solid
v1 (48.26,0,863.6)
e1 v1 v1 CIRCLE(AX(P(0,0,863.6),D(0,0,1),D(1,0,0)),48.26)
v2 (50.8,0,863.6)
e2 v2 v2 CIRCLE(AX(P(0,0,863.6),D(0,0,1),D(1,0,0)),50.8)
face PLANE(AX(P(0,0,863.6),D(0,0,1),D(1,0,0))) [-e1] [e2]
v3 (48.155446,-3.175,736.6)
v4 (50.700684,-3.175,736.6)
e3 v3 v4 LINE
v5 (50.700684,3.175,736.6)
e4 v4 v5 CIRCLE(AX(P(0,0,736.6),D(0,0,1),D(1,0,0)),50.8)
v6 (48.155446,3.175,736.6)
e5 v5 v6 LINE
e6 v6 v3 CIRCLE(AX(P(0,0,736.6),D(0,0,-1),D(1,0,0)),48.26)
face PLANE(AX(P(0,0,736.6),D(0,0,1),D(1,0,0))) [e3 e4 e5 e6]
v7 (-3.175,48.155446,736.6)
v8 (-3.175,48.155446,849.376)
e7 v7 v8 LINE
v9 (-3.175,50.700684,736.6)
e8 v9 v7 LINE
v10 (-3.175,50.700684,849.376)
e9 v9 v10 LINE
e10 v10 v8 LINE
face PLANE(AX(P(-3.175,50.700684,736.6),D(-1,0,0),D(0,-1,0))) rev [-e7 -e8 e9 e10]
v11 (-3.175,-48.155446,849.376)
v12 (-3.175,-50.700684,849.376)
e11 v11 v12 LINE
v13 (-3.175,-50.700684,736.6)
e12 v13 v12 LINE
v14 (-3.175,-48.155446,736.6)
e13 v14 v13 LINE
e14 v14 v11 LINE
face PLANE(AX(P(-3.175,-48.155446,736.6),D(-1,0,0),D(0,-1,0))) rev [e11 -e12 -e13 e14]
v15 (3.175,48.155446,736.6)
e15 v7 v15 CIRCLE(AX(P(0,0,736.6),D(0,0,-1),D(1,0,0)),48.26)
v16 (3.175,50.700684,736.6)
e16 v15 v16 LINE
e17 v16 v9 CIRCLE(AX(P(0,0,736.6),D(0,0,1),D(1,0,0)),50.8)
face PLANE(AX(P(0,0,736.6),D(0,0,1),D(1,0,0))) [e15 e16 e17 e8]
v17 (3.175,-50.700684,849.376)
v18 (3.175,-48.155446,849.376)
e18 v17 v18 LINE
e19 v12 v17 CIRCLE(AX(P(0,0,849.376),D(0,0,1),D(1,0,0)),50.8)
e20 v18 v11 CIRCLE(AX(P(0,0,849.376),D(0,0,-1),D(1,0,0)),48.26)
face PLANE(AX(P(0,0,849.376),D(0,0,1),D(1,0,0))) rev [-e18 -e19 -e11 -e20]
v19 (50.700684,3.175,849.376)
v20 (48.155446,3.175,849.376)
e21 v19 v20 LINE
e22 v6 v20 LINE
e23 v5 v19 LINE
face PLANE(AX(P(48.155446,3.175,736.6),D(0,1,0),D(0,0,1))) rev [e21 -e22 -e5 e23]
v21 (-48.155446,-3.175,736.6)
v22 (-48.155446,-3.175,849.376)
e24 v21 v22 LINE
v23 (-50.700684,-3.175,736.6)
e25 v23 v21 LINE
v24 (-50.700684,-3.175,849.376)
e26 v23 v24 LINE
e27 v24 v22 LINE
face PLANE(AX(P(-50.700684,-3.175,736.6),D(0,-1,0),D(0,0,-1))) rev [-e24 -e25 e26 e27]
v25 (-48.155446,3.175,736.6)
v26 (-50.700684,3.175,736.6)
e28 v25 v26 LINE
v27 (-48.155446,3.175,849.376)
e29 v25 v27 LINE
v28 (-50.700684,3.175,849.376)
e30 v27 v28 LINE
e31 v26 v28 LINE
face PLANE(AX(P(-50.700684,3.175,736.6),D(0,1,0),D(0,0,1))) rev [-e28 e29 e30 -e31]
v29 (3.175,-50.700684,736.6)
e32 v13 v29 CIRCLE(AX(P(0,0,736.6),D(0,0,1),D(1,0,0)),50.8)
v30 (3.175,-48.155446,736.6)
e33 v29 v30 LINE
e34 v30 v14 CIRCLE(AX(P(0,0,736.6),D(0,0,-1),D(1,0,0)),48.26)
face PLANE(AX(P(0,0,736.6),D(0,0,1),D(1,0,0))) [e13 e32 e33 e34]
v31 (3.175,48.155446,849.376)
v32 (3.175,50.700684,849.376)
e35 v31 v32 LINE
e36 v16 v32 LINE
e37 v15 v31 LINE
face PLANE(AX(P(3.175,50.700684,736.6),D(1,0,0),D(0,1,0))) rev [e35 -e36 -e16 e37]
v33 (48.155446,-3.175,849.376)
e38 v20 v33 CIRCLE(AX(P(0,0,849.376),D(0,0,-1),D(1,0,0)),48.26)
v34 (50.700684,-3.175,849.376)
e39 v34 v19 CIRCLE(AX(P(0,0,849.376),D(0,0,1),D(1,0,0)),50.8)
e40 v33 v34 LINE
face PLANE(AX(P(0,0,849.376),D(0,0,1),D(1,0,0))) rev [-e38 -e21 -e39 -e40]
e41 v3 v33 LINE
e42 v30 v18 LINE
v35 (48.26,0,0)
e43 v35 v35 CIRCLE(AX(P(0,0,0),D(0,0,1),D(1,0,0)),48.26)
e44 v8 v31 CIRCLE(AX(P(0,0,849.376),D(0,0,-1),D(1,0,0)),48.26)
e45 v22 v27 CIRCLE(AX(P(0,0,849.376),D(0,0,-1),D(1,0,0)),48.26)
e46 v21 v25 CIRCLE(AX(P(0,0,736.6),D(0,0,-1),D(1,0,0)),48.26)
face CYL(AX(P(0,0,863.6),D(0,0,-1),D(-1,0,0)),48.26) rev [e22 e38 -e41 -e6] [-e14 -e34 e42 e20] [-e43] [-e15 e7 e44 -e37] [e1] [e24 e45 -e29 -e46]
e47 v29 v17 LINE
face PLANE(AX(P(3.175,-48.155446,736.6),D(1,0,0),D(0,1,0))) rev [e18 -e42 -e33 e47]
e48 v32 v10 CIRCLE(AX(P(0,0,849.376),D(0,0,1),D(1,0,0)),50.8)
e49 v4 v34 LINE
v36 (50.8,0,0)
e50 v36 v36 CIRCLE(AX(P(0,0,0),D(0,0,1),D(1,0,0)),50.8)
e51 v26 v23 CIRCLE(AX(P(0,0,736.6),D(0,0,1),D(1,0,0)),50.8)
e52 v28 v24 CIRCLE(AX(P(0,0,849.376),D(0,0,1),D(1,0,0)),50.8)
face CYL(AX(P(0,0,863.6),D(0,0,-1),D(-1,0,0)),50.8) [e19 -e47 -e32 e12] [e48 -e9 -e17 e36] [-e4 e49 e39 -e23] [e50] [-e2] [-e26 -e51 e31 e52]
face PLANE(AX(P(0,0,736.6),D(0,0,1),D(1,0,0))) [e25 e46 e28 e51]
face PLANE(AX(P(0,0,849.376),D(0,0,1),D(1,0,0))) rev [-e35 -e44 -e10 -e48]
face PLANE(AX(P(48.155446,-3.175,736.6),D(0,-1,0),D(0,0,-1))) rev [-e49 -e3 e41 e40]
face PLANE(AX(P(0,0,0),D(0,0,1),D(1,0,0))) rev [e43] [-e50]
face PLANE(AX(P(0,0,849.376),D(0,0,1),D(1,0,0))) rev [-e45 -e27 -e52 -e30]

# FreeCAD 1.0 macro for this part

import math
import FreeCAD as App
import Part
import Sketcher
Q = App.Units.Quantity

doc = App.newDocument("Part")
params = doc.addObject("Spreadsheet::Sheet", "Params")
for row, (alias, value) in enumerate([
    ("sketch1_diameter", "4 in"),
    ("sketch1_diameter2", "3.8 in"),
    ("pad1_length", "34 in"),
    ("sketch2_radius", "2 in"),
    ("sketch2_radius2", "1.9 in"),
    ("pocket1_length", "5 in"),
    ("sketch3_radius", "2 in"),
    ("sketch3_radius2", "1.9 in"),
    ("pad2_length", "0.56 in"),
], start=1):
    params.set(f"A{row}", alias)
    params.set(f"B{row}", "=" + value)
    params.setAlias(f"B{row}", alias)

body = doc.addObject("PartDesign::Body", "Body")

# Sketch on XY plane
sketch1 = body.newObject("Sketcher::SketchObject", "Sketch")
sketch1.AttachmentSupport = (doc.getObject("XY_Plane"), [""])
sketch1.MapMode = "FlatFace"
sketch1.addGeometry(Part.Circle(App.Vector(0, 0, 0), App.Vector(0, 0, 1), 51), False)
sketch1.addGeometry(Part.Circle(App.Vector(0, 0, 0), App.Vector(0, 0, 1), 48), False)
sketch1.addConstraint(Sketcher.Constraint("Coincident", 0, 3, -1, 1))
sketch1.addConstraint(Sketcher.Constraint("Coincident", 1, 3, -1, 1))
sketch1.addConstraint(Sketcher.Constraint("Diameter", 0, Q("4 in")))
sketch1.addConstraint(Sketcher.Constraint("Diameter", 1, Q("3.8 in")))
sketch1.setExpression("Constraints[2]", "Params.sketch1_diameter")
sketch1.setExpression("Constraints[3]", "Params.sketch1_diameter2")
pad1 = body.newObject("PartDesign::Pad", "Pad")
pad1.Profile = sketch1
pad1.setExpression("Length", "Params.pad1_length")

# Sketch on XY plane
sketch2 = body.newObject("Sketcher::SketchObject", "Sketch001")
sketch2.AttachmentSupport = (doc.getObject("XY_Plane"), [""])
sketch2.MapMode = "FlatFace"
sketch2.AttachmentOffset = App.Placement(App.Vector(0, 0, 29 * 25.4), App.Rotation())
sketch2.addGeometry(Part.LineSegment(App.Vector(-3.2, 50.7, 0), App.Vector(-3.2, 48.2, 0)), False)
sketch2.addGeometry(Part.ArcOfCircle(Part.Circle(App.Vector(0, 0, 0), App.Vector(0, 0, 1), 48.3), math.radians(86.23), math.radians(93.77)), False)
sketch2.addGeometry(Part.LineSegment(App.Vector(3.2, 48.2, 0), App.Vector(3.2, 50.7, 0)), False)
sketch2.addGeometry(Part.ArcOfCircle(Part.Circle(App.Vector(0, 0, 0), App.Vector(0, 0, 1), 50.8), math.radians(86.42), math.radians(93.58)), False)
sketch2.addGeometry(Part.LineSegment(App.Vector(-48.2, 3.2, 0), App.Vector(-50.7, 3.2, 0)), False)
sketch2.addGeometry(Part.ArcOfCircle(Part.Circle(App.Vector(0, 0, 0), App.Vector(0, 0, 1), 50.8), math.radians(176.42), math.radians(183.58)), False)
sketch2.addGeometry(Part.LineSegment(App.Vector(-50.7, -3.2, 0), App.Vector(-48.2, -3.2, 0)), False)
sketch2.addGeometry(Part.ArcOfCircle(Part.Circle(App.Vector(0, 0, 0), App.Vector(0, 0, 1), 48.3), math.radians(176.23), math.radians(183.77)), False)
sketch2.addGeometry(Part.LineSegment(App.Vector(50.7, 3.2, 0), App.Vector(48.2, 3.2, 0)), False)
sketch2.addGeometry(Part.ArcOfCircle(Part.Circle(App.Vector(0, 0, 0), App.Vector(0, 0, 1), 48.3), math.radians(-3.77), math.radians(3.77)), False)
sketch2.addGeometry(Part.LineSegment(App.Vector(48.2, -3.2, 0), App.Vector(50.7, -3.2, 0)), False)
sketch2.addGeometry(Part.ArcOfCircle(Part.Circle(App.Vector(0, 0, 0), App.Vector(0, 0, 1), 50.8), math.radians(-3.58), math.radians(3.58)), False)
sketch2.addGeometry(Part.LineSegment(App.Vector(3.2, -50.7, 0), App.Vector(3.2, -48.2, 0)), False)
sketch2.addGeometry(Part.ArcOfCircle(Part.Circle(App.Vector(0, 0, 0), App.Vector(0, 0, 1), 48.3), math.radians(-93.77), math.radians(-86.23)), False)
sketch2.addGeometry(Part.LineSegment(App.Vector(-3.2, -48.2, 0), App.Vector(-3.2, -50.7, 0)), False)
sketch2.addGeometry(Part.ArcOfCircle(Part.Circle(App.Vector(0, 0, 0), App.Vector(0, 0, 1), 50.8), math.radians(-93.58), math.radians(-86.42)), False)
sketch2.addConstraint(Sketcher.Constraint("Coincident", 0, 2, 1, 2))
sketch2.addConstraint(Sketcher.Constraint("Coincident", 1, 1, 2, 1))
sketch2.addConstraint(Sketcher.Constraint("Coincident", 2, 2, 3, 1))
sketch2.addConstraint(Sketcher.Constraint("Coincident", 3, 2, 0, 1))
sketch2.addConstraint(Sketcher.Constraint("Coincident", 4, 2, 5, 1))
sketch2.addConstraint(Sketcher.Constraint("Coincident", 5, 2, 6, 1))
sketch2.addConstraint(Sketcher.Constraint("Coincident", 6, 2, 7, 2))
sketch2.addConstraint(Sketcher.Constraint("Coincident", 7, 1, 4, 1))
sketch2.addConstraint(Sketcher.Constraint("Coincident", 8, 2, 9, 2))
sketch2.addConstraint(Sketcher.Constraint("Coincident", 9, 1, 10, 1))
sketch2.addConstraint(Sketcher.Constraint("Coincident", 10, 2, 11, 1))
sketch2.addConstraint(Sketcher.Constraint("Coincident", 11, 2, 8, 1))
sketch2.addConstraint(Sketcher.Constraint("Coincident", 12, 2, 13, 2))
sketch2.addConstraint(Sketcher.Constraint("Coincident", 13, 1, 14, 1))
sketch2.addConstraint(Sketcher.Constraint("Coincident", 14, 2, 15, 1))
sketch2.addConstraint(Sketcher.Constraint("Coincident", 15, 2, 12, 1))
sketch2.addConstraint(Sketcher.Constraint("Vertical", 0))
sketch2.addConstraint(Sketcher.Constraint("Vertical", 2))
sketch2.addConstraint(Sketcher.Constraint("Horizontal", 4))
sketch2.addConstraint(Sketcher.Constraint("Horizontal", 6))
sketch2.addConstraint(Sketcher.Constraint("Horizontal", 8))
sketch2.addConstraint(Sketcher.Constraint("Horizontal", 10))
sketch2.addConstraint(Sketcher.Constraint("Vertical", 12))
sketch2.addConstraint(Sketcher.Constraint("Vertical", 14))
sketch2.addConstraint(Sketcher.Constraint("Coincident", 1, 3, -1, 1))
sketch2.addConstraint(Sketcher.Constraint("Coincident", 3, 3, -1, 1))
sketch2.addConstraint(Sketcher.Constraint("Coincident", 5, 3, -1, 1))
sketch2.addConstraint(Sketcher.Constraint("Coincident", 7, 3, -1, 1))
sketch2.addConstraint(Sketcher.Constraint("Coincident", 9, 3, -1, 1))
sketch2.addConstraint(Sketcher.Constraint("Coincident", 11, 3, -1, 1))
sketch2.addConstraint(Sketcher.Constraint("Coincident", 13, 3, -1, 1))
sketch2.addConstraint(Sketcher.Constraint("Coincident", 15, 3, -1, 1))
sketch2.addConstraint(Sketcher.Constraint("Equal", 3, 5))
sketch2.addConstraint(Sketcher.Constraint("Equal", 1, 7))
sketch2.addConstraint(Sketcher.Constraint("Equal", 7, 9))
sketch2.addConstraint(Sketcher.Constraint("Equal", 5, 11))
sketch2.addConstraint(Sketcher.Constraint("Equal", 9, 13))
sketch2.addConstraint(Sketcher.Constraint("Equal", 11, 15))
sketch2.addConstraint(Sketcher.Constraint("Horizontal", 0, 2, 1, 1))
sketch2.addConstraint(Sketcher.Constraint("Horizontal", 7, 1, 8, 2))
sketch2.addConstraint(Sketcher.Constraint("Horizontal", 6, 2, 9, 1))
sketch2.addConstraint(Sketcher.Constraint("Horizontal", 12, 2, 13, 1))
sketch2.addConstraint(Sketcher.Constraint("Vertical", 4, 2, 5, 2))
sketch2.addConstraint(Sketcher.Constraint("Vertical", 2, 2, 12, 2))
sketch2.addConstraint(Sketcher.Constraint("Radius", 3, Q("2 in")))
sketch2.addConstraint(Sketcher.Constraint("Radius", 1, Q("1.9 in")))
sketch2.addConstraint(Sketcher.Constraint("DistanceX", 0, 2, 1, 1, Q("0.25 in")))
sketch2.addConstraint(Sketcher.Constraint("DistanceY", 5, 2, 4, 2, Q("0.25 in")))
sketch2.setExpression("Constraints[44]", "Params.sketch2_radius")
sketch2.setExpression("Constraints[45]", "Params.sketch2_radius2")
pocket1 = body.newObject("PartDesign::Pocket", "Pocket")
pocket1.Profile = sketch2
pocket1.setExpression("Length", "Params.pocket1_length")
pocket1.Reversed = True

# Sketch on XY plane
sketch3 = body.newObject("Sketcher::SketchObject", "Sketch002")
sketch3.AttachmentSupport = (doc.getObject("XY_Plane"), [""])
sketch3.MapMode = "FlatFace"
sketch3.AttachmentOffset = App.Placement(App.Vector(0, 0, 33.44 * 25.4), App.Rotation())
sketch3.addGeometry(Part.LineSegment(App.Vector(-3.2, 50.7, 0), App.Vector(-3.2, 48.2, 0)), False)
sketch3.addGeometry(Part.ArcOfCircle(Part.Circle(App.Vector(0, 0, 0), App.Vector(0, 0, 1), 48.3), math.radians(86.23), math.radians(93.77)), False)
sketch3.addGeometry(Part.LineSegment(App.Vector(3.2, 48.2, 0), App.Vector(3.2, 50.7, 0)), False)
sketch3.addGeometry(Part.ArcOfCircle(Part.Circle(App.Vector(0, 0, 0), App.Vector(0, 0, 1), 50.8), math.radians(86.42), math.radians(93.58)), False)
sketch3.addGeometry(Part.LineSegment(App.Vector(50.7, 3.2, 0), App.Vector(48.2, 3.2, 0)), False)
sketch3.addGeometry(Part.ArcOfCircle(Part.Circle(App.Vector(0, 0, 0), App.Vector(0, 0, 1), 48.3), math.radians(-3.77), math.radians(3.77)), False)
sketch3.addGeometry(Part.LineSegment(App.Vector(48.2, -3.2, 0), App.Vector(50.7, -3.2, 0)), False)
sketch3.addGeometry(Part.ArcOfCircle(Part.Circle(App.Vector(0, 0, 0), App.Vector(0, 0, 1), 50.8), math.radians(-3.58), math.radians(3.58)), False)
sketch3.addGeometry(Part.LineSegment(App.Vector(3.2, -50.7, 0), App.Vector(3.2, -48.2, 0)), False)
sketch3.addGeometry(Part.ArcOfCircle(Part.Circle(App.Vector(0, 0, 0), App.Vector(0, 0, 1), 48.3), math.radians(-93.77), math.radians(-86.23)), False)
sketch3.addGeometry(Part.LineSegment(App.Vector(-3.2, -48.2, 0), App.Vector(-3.2, -50.7, 0)), False)
sketch3.addGeometry(Part.ArcOfCircle(Part.Circle(App.Vector(0, 0, 0), App.Vector(0, 0, 1), 50.8), math.radians(-93.58), math.radians(-86.42)), False)
sketch3.addGeometry(Part.LineSegment(App.Vector(-48.2, 3.2, 0), App.Vector(-50.7, 3.2, 0)), False)
sketch3.addGeometry(Part.ArcOfCircle(Part.Circle(App.Vector(0, 0, 0), App.Vector(0, 0, 1), 50.8), math.radians(176.42), math.radians(183.58)), False)
sketch3.addGeometry(Part.LineSegment(App.Vector(-50.7, -3.2, 0), App.Vector(-48.2, -3.2, 0)), False)
sketch3.addGeometry(Part.ArcOfCircle(Part.Circle(App.Vector(0, 0, 0), App.Vector(0, 0, 1), 48.3), math.radians(176.23), math.radians(183.77)), False)
sketch3.addConstraint(Sketcher.Constraint("Coincident", 0, 2, 1, 2))
sketch3.addConstraint(Sketcher.Constraint("Coincident", 1, 1, 2, 1))
sketch3.addConstraint(Sketcher.Constraint("Coincident", 2, 2, 3, 1))
sketch3.addConstraint(Sketcher.Constraint("Coincident", 3, 2, 0, 1))
sketch3.addConstraint(Sketcher.Constraint("Coincident", 4, 2, 5, 2))
sketch3.addConstraint(Sketcher.Constraint("Coincident", 5, 1, 6, 1))
sketch3.addConstraint(Sketcher.Constraint("Coincident", 6, 2, 7, 1))
sketch3.addConstraint(Sketcher.Constraint("Coincident", 7, 2, 4, 1))
sketch3.addConstraint(Sketcher.Constraint("Coincident", 8, 2, 9, 2))
sketch3.addConstraint(Sketcher.Constraint("Coincident", 9, 1, 10, 1))
sketch3.addConstraint(Sketcher.Constraint("Coincident", 10, 2, 11, 1))
sketch3.addConstraint(Sketcher.Constraint("Coincident", 11, 2, 8, 1))
sketch3.addConstraint(Sketcher.Constraint("Coincident", 12, 2, 13, 1))
sketch3.addConstraint(Sketcher.Constraint("Coincident", 13, 2, 14, 1))
sketch3.addConstraint(Sketcher.Constraint("Coincident", 14, 2, 15, 2))
sketch3.addConstraint(Sketcher.Constraint("Coincident", 15, 1, 12, 1))
sketch3.addConstraint(Sketcher.Constraint("Vertical", 0))
sketch3.addConstraint(Sketcher.Constraint("Vertical", 2))
sketch3.addConstraint(Sketcher.Constraint("Horizontal", 4))
sketch3.addConstraint(Sketcher.Constraint("Horizontal", 6))
sketch3.addConstraint(Sketcher.Constraint("Vertical", 8))
sketch3.addConstraint(Sketcher.Constraint("Vertical", 10))
sketch3.addConstraint(Sketcher.Constraint("Horizontal", 12))
sketch3.addConstraint(Sketcher.Constraint("Horizontal", 14))
sketch3.addConstraint(Sketcher.Constraint("Coincident", 1, 3, -1, 1))
sketch3.addConstraint(Sketcher.Constraint("Coincident", 3, 3, -1, 1))
sketch3.addConstraint(Sketcher.Constraint("Coincident", 5, 3, -1, 1))
sketch3.addConstraint(Sketcher.Constraint("Coincident", 7, 3, -1, 1))
sketch3.addConstraint(Sketcher.Constraint("Coincident", 9, 3, -1, 1))
sketch3.addConstraint(Sketcher.Constraint("Coincident", 11, 3, -1, 1))
sketch3.addConstraint(Sketcher.Constraint("Coincident", 13, 3, -1, 1))
sketch3.addConstraint(Sketcher.Constraint("Coincident", 15, 3, -1, 1))
sketch3.addConstraint(Sketcher.Constraint("Equal", 1, 5))
sketch3.addConstraint(Sketcher.Constraint("Equal", 3, 7))
sketch3.addConstraint(Sketcher.Constraint("Equal", 5, 9))
sketch3.addConstraint(Sketcher.Constraint("Equal", 7, 11))
sketch3.addConstraint(Sketcher.Constraint("Equal", 11, 13))
sketch3.addConstraint(Sketcher.Constraint("Equal", 9, 15))
sketch3.addConstraint(Sketcher.Constraint("Horizontal", 0, 2, 1, 1))
sketch3.addConstraint(Sketcher.Constraint("Horizontal", 8, 2, 9, 1))
sketch3.addConstraint(Sketcher.Constraint("Horizontal", 7, 2, 12, 2))
sketch3.addConstraint(Sketcher.Constraint("Horizontal", 6, 2, 13, 2))
sketch3.addConstraint(Sketcher.Constraint("Vertical", 4, 2, 5, 1))
sketch3.addConstraint(Sketcher.Constraint("Vertical", 2, 2, 8, 2))
sketch3.addConstraint(Sketcher.Constraint("Radius", 3, Q("2 in")))
sketch3.addConstraint(Sketcher.Constraint("Radius", 1, Q("1.9 in")))
sketch3.addConstraint(Sketcher.Constraint("DistanceX", 0, 2, 1, 1, Q("0.25 in")))
sketch3.addConstraint(Sketcher.Constraint("DistanceY", 5, 1, 4, 2, Q("0.25 in")))
sketch3.setExpression("Constraints[44]", "Params.sketch3_radius")
sketch3.setExpression("Constraints[45]", "Params.sketch3_radius2")
pad2 = body.newObject("PartDesign::Pad", "Pad001")
pad2.Profile = sketch3
pad2.setExpression("Length", "Params.pad2_length")

doc.recompute()
